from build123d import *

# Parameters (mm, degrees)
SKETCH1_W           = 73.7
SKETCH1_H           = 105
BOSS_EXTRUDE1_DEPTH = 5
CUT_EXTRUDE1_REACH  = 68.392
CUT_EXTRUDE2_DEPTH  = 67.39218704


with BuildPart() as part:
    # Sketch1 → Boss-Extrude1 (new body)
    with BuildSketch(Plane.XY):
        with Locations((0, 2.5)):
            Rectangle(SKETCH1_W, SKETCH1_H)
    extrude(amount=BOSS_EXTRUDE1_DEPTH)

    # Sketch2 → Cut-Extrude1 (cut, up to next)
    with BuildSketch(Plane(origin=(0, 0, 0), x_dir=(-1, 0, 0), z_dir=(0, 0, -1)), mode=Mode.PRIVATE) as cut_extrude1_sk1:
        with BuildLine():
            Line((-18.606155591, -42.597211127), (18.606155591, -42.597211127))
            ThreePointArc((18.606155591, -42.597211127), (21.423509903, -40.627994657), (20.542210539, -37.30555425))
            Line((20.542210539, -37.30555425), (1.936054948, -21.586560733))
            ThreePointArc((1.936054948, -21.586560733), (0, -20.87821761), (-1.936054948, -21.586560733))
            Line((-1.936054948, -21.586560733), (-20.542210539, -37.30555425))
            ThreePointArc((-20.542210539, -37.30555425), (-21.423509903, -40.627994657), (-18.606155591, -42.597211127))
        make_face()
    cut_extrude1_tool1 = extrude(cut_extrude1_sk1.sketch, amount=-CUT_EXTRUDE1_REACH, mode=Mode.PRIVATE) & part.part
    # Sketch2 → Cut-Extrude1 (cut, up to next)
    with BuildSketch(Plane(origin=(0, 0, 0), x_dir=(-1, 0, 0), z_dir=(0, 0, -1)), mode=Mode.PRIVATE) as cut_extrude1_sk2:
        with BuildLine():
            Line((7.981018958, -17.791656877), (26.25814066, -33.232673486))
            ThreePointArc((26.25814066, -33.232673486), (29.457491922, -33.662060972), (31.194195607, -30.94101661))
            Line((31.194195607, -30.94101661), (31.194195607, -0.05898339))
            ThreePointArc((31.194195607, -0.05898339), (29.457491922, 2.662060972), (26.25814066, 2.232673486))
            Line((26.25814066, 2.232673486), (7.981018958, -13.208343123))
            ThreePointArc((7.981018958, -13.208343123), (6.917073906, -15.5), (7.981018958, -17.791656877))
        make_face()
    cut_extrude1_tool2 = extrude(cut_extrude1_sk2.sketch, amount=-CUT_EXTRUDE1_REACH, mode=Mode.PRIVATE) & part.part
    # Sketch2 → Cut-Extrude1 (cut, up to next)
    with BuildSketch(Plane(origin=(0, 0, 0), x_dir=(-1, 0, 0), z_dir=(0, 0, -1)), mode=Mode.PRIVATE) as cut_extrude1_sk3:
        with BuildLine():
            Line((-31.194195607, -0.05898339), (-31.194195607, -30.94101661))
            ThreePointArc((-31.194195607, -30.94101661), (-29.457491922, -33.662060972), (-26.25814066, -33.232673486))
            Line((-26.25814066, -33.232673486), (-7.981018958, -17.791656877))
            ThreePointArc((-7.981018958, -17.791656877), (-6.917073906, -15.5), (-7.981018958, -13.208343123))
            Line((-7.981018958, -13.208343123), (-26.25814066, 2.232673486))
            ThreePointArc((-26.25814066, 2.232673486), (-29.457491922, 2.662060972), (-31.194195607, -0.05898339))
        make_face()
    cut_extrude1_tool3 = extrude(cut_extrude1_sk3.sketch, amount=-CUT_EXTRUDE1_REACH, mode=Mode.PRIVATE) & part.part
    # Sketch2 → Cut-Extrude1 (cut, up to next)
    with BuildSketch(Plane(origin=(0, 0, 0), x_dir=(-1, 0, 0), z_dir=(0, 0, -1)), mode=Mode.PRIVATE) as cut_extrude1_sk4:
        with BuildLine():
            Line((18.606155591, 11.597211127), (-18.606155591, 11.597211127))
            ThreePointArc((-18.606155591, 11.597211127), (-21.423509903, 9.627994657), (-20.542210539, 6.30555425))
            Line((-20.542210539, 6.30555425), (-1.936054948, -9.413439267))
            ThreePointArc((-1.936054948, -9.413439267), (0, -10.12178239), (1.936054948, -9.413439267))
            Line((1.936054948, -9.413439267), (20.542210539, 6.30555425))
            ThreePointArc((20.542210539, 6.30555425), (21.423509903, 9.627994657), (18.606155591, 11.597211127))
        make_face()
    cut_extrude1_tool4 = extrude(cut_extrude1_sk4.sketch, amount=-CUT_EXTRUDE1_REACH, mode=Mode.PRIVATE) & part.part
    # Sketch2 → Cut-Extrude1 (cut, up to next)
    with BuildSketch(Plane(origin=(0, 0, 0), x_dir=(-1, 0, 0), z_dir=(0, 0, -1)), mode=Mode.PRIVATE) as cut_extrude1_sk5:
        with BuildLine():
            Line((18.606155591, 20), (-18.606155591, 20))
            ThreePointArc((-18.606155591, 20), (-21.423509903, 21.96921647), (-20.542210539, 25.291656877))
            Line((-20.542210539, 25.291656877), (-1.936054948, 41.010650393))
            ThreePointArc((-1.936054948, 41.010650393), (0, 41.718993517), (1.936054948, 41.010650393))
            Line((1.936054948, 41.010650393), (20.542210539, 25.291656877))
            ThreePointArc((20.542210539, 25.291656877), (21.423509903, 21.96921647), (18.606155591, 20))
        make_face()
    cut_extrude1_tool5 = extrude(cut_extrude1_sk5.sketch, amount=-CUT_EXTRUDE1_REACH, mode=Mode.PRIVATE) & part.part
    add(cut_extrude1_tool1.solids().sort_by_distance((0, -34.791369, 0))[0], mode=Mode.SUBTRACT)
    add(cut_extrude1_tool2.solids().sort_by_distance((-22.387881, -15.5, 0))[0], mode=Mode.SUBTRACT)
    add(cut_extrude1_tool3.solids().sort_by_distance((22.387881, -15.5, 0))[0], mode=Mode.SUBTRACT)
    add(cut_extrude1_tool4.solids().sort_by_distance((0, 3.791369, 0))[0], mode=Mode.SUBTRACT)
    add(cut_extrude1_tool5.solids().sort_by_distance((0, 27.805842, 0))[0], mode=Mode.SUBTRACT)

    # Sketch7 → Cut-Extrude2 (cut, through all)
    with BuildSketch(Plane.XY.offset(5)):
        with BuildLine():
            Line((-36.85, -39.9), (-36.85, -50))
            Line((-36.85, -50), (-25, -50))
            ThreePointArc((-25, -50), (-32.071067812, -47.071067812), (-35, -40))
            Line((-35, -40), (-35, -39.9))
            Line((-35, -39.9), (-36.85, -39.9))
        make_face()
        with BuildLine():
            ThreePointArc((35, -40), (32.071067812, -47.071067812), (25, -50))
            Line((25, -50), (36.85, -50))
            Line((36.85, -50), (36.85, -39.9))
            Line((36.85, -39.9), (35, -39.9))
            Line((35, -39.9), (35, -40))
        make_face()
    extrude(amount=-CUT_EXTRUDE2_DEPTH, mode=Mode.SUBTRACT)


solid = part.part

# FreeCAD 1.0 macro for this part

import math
import FreeCAD as App
import Part
import Sketcher

doc = App.newDocument("Part")
body = doc.addObject("PartDesign::Body", "Body")

# Sketch on XY plane
sketch1 = body.newObject("Sketcher::SketchObject", "Sketch")
sketch1.AttachmentSupport = (doc.getObject("XY_Plane"), [""])
sketch1.MapMode = "FlatFace"
sketch1.addGeometry(Part.LineSegment(App.Vector(-36.85, 55, 0), App.Vector(-36.85, -50, 0)), False)
sketch1.addGeometry(Part.LineSegment(App.Vector(-36.85, -50, 0), App.Vector(36.85, -50, 0)), False)
sketch1.addGeometry(Part.LineSegment(App.Vector(36.85, -50, 0), App.Vector(36.85, 55, 0)), False)
sketch1.addGeometry(Part.LineSegment(App.Vector(36.85, 55, 0), App.Vector(-36.85, 55, 0)), False)
sketch1.addConstraint(Sketcher.Constraint("Coincident", 0, 2, 1, 1))
sketch1.addConstraint(Sketcher.Constraint("Coincident", 1, 2, 2, 1))
sketch1.addConstraint(Sketcher.Constraint("Coincident", 2, 2, 3, 1))
sketch1.addConstraint(Sketcher.Constraint("Coincident", 3, 2, 0, 1))
sketch1.addConstraint(Sketcher.Constraint("Vertical", 0))
sketch1.addConstraint(Sketcher.Constraint("Horizontal", 1))
sketch1.addConstraint(Sketcher.Constraint("Vertical", 2))
sketch1.addConstraint(Sketcher.Constraint("Horizontal", 3))
sketch1.addConstraint(Sketcher.Constraint("DistanceY", 0, 2, 0, 1, 105.0))
sketch1.addConstraint(Sketcher.Constraint("DistanceX", 1, 1, 1, 2, 73.7))
sketch1.addConstraint(Sketcher.Constraint("DistanceY", 0, 2, -1, 1, 50.0))
sketch1.addConstraint(Sketcher.Constraint("DistanceX", 0, 2, -1, 1, 36.85))
pad1 = body.newObject("PartDesign::Pad", "Pad")
pad1.Profile = sketch1
pad1.Length = 5

# Sketch on XY plane
sketch2 = body.newObject("Sketcher::SketchObject", "Sketch001")
sketch2.AttachmentSupport = (doc.getObject("XY_Plane"), [""])
sketch2.MapMode = "FlatFace"
sketch2.addGeometry(Part.LineSegment(App.Vector(18.606156, -42.597211, 0), App.Vector(-18.606156, -42.597211, 0)), False)
sketch2.addGeometry(Part.ArcOfCircle(Part.Circle(App.Vector(-18.606156, -39.597211, 0), App.Vector(0, 0, 1), 3), math.radians(130.192046), math.radians(270)), False)
sketch2.addGeometry(Part.LineSegment(App.Vector(-20.542211, -37.305554, 0), App.Vector(-1.936055, -21.586561, 0)), False)
sketch2.addGeometry(Part.ArcOfCircle(Part.Circle(App.Vector(0, -23.878218, 0), App.Vector(0, 0, 1), 3), math.radians(49.807954), math.radians(130.192046)), False)
sketch2.addGeometry(Part.LineSegment(App.Vector(1.936055, -21.586561, 0), App.Vector(20.542211, -37.305554, 0)), False)
sketch2.addGeometry(Part.ArcOfCircle(Part.Circle(App.Vector(18.606156, -39.597211, 0), App.Vector(0, 0, 1), 3), math.radians(-90), math.radians(49.807954)), False)
sketch2.addConstraint(Sketcher.Constraint("Tangent", 0, 2, 1, 2))
sketch2.addConstraint(Sketcher.Constraint("Tangent", 1, 1, 2, 1))
sketch2.addConstraint(Sketcher.Constraint("Tangent", 2, 2, 3, 2))
sketch2.addConstraint(Sketcher.Constraint("Tangent", 3, 1, 4, 1))
sketch2.addConstraint(Sketcher.Constraint("Tangent", 4, 2, 5, 2))
sketch2.addConstraint(Sketcher.Constraint("Tangent", 5, 1, 0, 1))
sketch2.addConstraint(Sketcher.Constraint("Horizontal", 0))
sketch2.addConstraint(Sketcher.Constraint("Equal", 1, 3))
sketch2.addConstraint(Sketcher.Constraint("Equal", 3, 5))
sketch2.addConstraint(Sketcher.Constraint("Symmetric", 2, 2, 3, 1, -2))
sketch2.addConstraint(Sketcher.Constraint("Radius", 1, 3.0))
sketch2.addConstraint(Sketcher.Constraint("DistanceX", 0, 2, 0, 1, 37.212311))
sketch2.addConstraint(Sketcher.Constraint("DistanceX", 1, 3, 2, 2, 16.670101))
sketch2.addConstraint(Sketcher.Constraint("DistanceY", 1, 3, -1, 1, 39.597211))
pocket1 = body.newObject("PartDesign::Pocket", "Pocket")
pocket1.Profile = sketch2
pocket1.Type = "UpToFirst"
pocket1.Reversed = True

# Sketch on XY plane
sketch3 = body.newObject("Sketcher::SketchObject", "Sketch002")
sketch3.AttachmentSupport = (doc.getObject("XY_Plane"), [""])
sketch3.MapMode = "FlatFace"
sketch3.addGeometry(Part.LineSegment(App.Vector(-7.981019, -17.791657, 0), App.Vector(-26.258141, -33.232673, 0)), False)
sketch3.addGeometry(Part.ArcOfCircle(Part.Circle(App.Vector(-28.194196, -30.941017, 0), App.Vector(0, 0, 1), 3), math.radians(180), math.radians(310.192046)), False)
sketch3.addGeometry(Part.LineSegment(App.Vector(-31.194196, -30.941017, 0), App.Vector(-31.194196, -0.058983, 0)), False)
sketch3.addGeometry(Part.ArcOfCircle(Part.Circle(App.Vector(-28.194196, -0.058983, 0), App.Vector(0, 0, 1), 3), math.radians(49.807954), math.radians(180)), False)
sketch3.addGeometry(Part.LineSegment(App.Vector(-26.258141, 2.232673, 0), App.Vector(-7.981019, -13.208343, 0)), False)
sketch3.addGeometry(Part.ArcOfCircle(Part.Circle(App.Vector(-9.917074, -15.5, 0), App.Vector(0, 0, 1), 3), math.radians(-49.807954), math.radians(49.807954)), False)
sketch3.addConstraint(Sketcher.Constraint("Tangent", 0, 2, 1, 2))
sketch3.addConstraint(Sketcher.Constraint("Tangent", 1, 1, 2, 1))
sketch3.addConstraint(Sketcher.Constraint("Tangent", 2, 2, 3, 2))
sketch3.addConstraint(Sketcher.Constraint("Tangent", 3, 1, 4, 1))
sketch3.addConstraint(Sketcher.Constraint("Tangent", 4, 2, 5, 2))
sketch3.addConstraint(Sketcher.Constraint("Tangent", 5, 1, 0, 1))
sketch3.addConstraint(Sketcher.Constraint("Vertical", 2))
sketch3.addConstraint(Sketcher.Constraint("Equal", 1, 3))
sketch3.addConstraint(Sketcher.Constraint("Equal", 3, 5))
sketch3.addConstraint(Sketcher.Constraint("Vertical", 0, 2, 3, 1))
sketch3.addConstraint(Sketcher.Constraint("Radius", 1, 3.0))
sketch3.addConstraint(Sketcher.Constraint("DistanceY", 5, 3, -1, 1, 15.5))
sketch3.addConstraint(Sketcher.Constraint("DistanceY", 2, 1, 2, 2, 30.882033))
sketch3.addConstraint(Sketcher.Constraint("DistanceX", 0, 2, -1, 1, 26.258141))
sketch3.addConstraint(Sketcher.Constraint("DistanceX", 4, 2, -1, 1, 7.981019))
pocket2 = body.newObject("PartDesign::Pocket", "Pocket001")
pocket2.Profile = sketch3
pocket2.Type = "UpToFirst"
pocket2.Reversed = True

# Sketch on XY plane
sketch4 = body.newObject("Sketcher::SketchObject", "Sketch003")
sketch4.AttachmentSupport = (doc.getObject("XY_Plane"), [""])
sketch4.MapMode = "FlatFace"
sketch4.addGeometry(Part.LineSegment(App.Vector(31.194196, -0.058983, 0), App.Vector(31.194196, -30.941017, 0)), False)
sketch4.addGeometry(Part.ArcOfCircle(Part.Circle(App.Vector(28.194196, -30.941017, 0), App.Vector(0, 0, 1), 3), math.radians(-130.192046), math.radians(0)), False)
sketch4.addGeometry(Part.LineSegment(App.Vector(26.258141, -33.232673, 0), App.Vector(7.981019, -17.791657, 0)), False)
sketch4.addGeometry(Part.ArcOfCircle(Part.Circle(App.Vector(9.917074, -15.5, 0), App.Vector(0, 0, 1), 3), math.radians(130.192046), math.radians(229.807954)), False)
sketch4.addGeometry(Part.LineSegment(App.Vector(7.981019, -13.208343, 0), App.Vector(26.258141, 2.232673, 0)), False)
sketch4.addGeometry(Part.ArcOfCircle(Part.Circle(App.Vector(28.194196, -0.058983, 0), App.Vector(0, 0, 1), 3), math.radians(0), math.radians(130.192046)), False)
sketch4.addConstraint(Sketcher.Constraint("Tangent", 0, 2, 1, 2))
sketch4.addConstraint(Sketcher.Constraint("Tangent", 1, 1, 2, 1))
sketch4.addConstraint(Sketcher.Constraint("Tangent", 2, 2, 3, 2))
sketch4.addConstraint(Sketcher.Constraint("Tangent", 3, 1, 4, 1))
sketch4.addConstraint(Sketcher.Constraint("Tangent", 4, 2, 5, 2))
sketch4.addConstraint(Sketcher.Constraint("Tangent", 5, 1, 0, 1))
sketch4.addConstraint(Sketcher.Constraint("Vertical", 0))
sketch4.addConstraint(Sketcher.Constraint("Equal", 1, 3))
sketch4.addConstraint(Sketcher.Constraint("Equal", 3, 5))
sketch4.addConstraint(Sketcher.Constraint("Vertical", 2, 2, 3, 1))
sketch4.addConstraint(Sketcher.Constraint("Radius", 1, 3.0))
sketch4.addConstraint(Sketcher.Constraint("DistanceY", 3, 3, -1, 1, 15.5))
sketch4.addConstraint(Sketcher.Constraint("DistanceY", 0, 2, 0, 1, 30.882033))
sketch4.addConstraint(Sketcher.Constraint("DistanceX", -1, 1, 1, 1, 26.258141))
sketch4.addConstraint(Sketcher.Constraint("DistanceX", -1, 1, 2, 2, 7.981019))
pocket3 = body.newObject("PartDesign::Pocket", "Pocket002")
pocket3.Profile = sketch4
pocket3.Type = "UpToFirst"
pocket3.Reversed = True

# Sketch on XY plane
sketch5 = body.newObject("Sketcher::SketchObject", "Sketch004")
sketch5.AttachmentSupport = (doc.getObject("XY_Plane"), [""])
sketch5.MapMode = "FlatFace"
sketch5.addGeometry(Part.LineSegment(App.Vector(-18.606156, 11.597211, 0), App.Vector(18.606156, 11.597211, 0)), False)
sketch5.addGeometry(Part.ArcOfCircle(Part.Circle(App.Vector(18.606156, 8.597211, 0), App.Vector(0, 0, 1), 3), math.radians(-49.807954), math.radians(90)), False)
sketch5.addGeometry(Part.LineSegment(App.Vector(20.542211, 6.305554, 0), App.Vector(1.936055, -9.413439, 0)), False)
sketch5.addGeometry(Part.ArcOfCircle(Part.Circle(App.Vector(0, -7.121782, 0), App.Vector(0, 0, 1), 3), math.radians(-130.192046), math.radians(-49.807954)), False)
sketch5.addGeometry(Part.LineSegment(App.Vector(-1.936055, -9.413439, 0), App.Vector(-20.542211, 6.305554, 0)), False)
sketch5.addGeometry(Part.ArcOfCircle(Part.Circle(App.Vector(-18.606156, 8.597211, 0), App.Vector(0, 0, 1), 3), math.radians(90), math.radians(229.807954)), False)
sketch5.addConstraint(Sketcher.Constraint("Tangent", 0, 2, 1, 2))
sketch5.addConstraint(Sketcher.Constraint("Tangent", 1, 1, 2, 1))
sketch5.addConstraint(Sketcher.Constraint("Tangent", 2, 2, 3, 2))
sketch5.addConstraint(Sketcher.Constraint("Tangent", 3, 1, 4, 1))
sketch5.addConstraint(Sketcher.Constraint("Tangent", 4, 2, 5, 2))
sketch5.addConstraint(Sketcher.Constraint("Tangent", 5, 1, 0, 1))
sketch5.addConstraint(Sketcher.Constraint("Horizontal", 0))
sketch5.addConstraint(Sketcher.Constraint("Equal", 1, 3))
sketch5.addConstraint(Sketcher.Constraint("Equal", 3, 5))
sketch5.addConstraint(Sketcher.Constraint("Symmetric", 2, 2, 3, 1, -2))
sketch5.addConstraint(Sketcher.Constraint("Radius", 1, 3.0))
sketch5.addConstraint(Sketcher.Constraint("DistanceX", 0, 1, 0, 2, 37.212311))
sketch5.addConstraint(Sketcher.Constraint("DistanceX", 2, 2, 1, 3, 16.670101))
sketch5.addConstraint(Sketcher.Constraint("DistanceY", -1, 1, 1, 3, 8.597211))
pocket4 = body.newObject("PartDesign::Pocket", "Pocket003")
pocket4.Profile = sketch5
pocket4.Type = "UpToFirst"
pocket4.Reversed = True

# Sketch on XY plane
sketch6 = body.newObject("Sketcher::SketchObject", "Sketch005")
sketch6.AttachmentSupport = (doc.getObject("XY_Plane"), [""])
sketch6.MapMode = "FlatFace"
sketch6.addGeometry(Part.LineSegment(App.Vector(18.606156, 20, 0), App.Vector(-18.606156, 20, 0)), False)
sketch6.addGeometry(Part.ArcOfCircle(Part.Circle(App.Vector(-18.606156, 23, 0), App.Vector(0, 0, 1), 3), math.radians(130.192046), math.radians(270)), False)
sketch6.addGeometry(Part.LineSegment(App.Vector(-20.542211, 25.291657, 0), App.Vector(-1.936055, 41.01065, 0)), False)
sketch6.addGeometry(Part.ArcOfCircle(Part.Circle(App.Vector(0, 38.718994, 0), App.Vector(0, 0, 1), 3), math.radians(49.807954), math.radians(130.192046)), False)
sketch6.addGeometry(Part.LineSegment(App.Vector(1.936055, 41.01065, 0), App.Vector(20.542211, 25.291657, 0)), False)
sketch6.addGeometry(Part.ArcOfCircle(Part.Circle(App.Vector(18.606156, 23, 0), App.Vector(0, 0, 1), 3), math.radians(-90), math.radians(49.807954)), False)
sketch6.addConstraint(Sketcher.Constraint("Tangent", 0, 2, 1, 2))
sketch6.addConstraint(Sketcher.Constraint("Tangent", 1, 1, 2, 1))
sketch6.addConstraint(Sketcher.Constraint("Tangent", 2, 2, 3, 2))
sketch6.addConstraint(Sketcher.Constraint("Tangent", 3, 1, 4, 1))
sketch6.addConstraint(Sketcher.Constraint("Tangent", 4, 2, 5, 2))
sketch6.addConstraint(Sketcher.Constraint("Tangent", 5, 1, 0, 1))
sketch6.addConstraint(Sketcher.Constraint("Horizontal", 0))
sketch6.addConstraint(Sketcher.Constraint("Equal", 1, 3))
sketch6.addConstraint(Sketcher.Constraint("Equal", 3, 5))
sketch6.addConstraint(Sketcher.Constraint("Symmetric", 2, 2, 3, 1, -2))
sketch6.addConstraint(Sketcher.Constraint("Radius", 1, 3.0))
sketch6.addConstraint(Sketcher.Constraint("DistanceY", -1, 1, 1, 3, 23.0))
sketch6.addConstraint(Sketcher.Constraint("DistanceX", 0, 2, 0, 1, 37.212311))
sketch6.addConstraint(Sketcher.Constraint("DistanceX", 1, 3, 2, 2, 16.670101))
pocket5 = body.newObject("PartDesign::Pocket", "Pocket004")
pocket5.Profile = sketch6
pocket5.Type = "UpToFirst"
pocket5.Reversed = True

# Sketch on XY plane
sketch7 = body.newObject("Sketcher::SketchObject", "Sketch006")
sketch7.AttachmentSupport = (doc.getObject("XY_Plane"), [""])
sketch7.MapMode = "FlatFace"
sketch7.AttachmentOffset = App.Placement(App.Vector(0, 0, 5), App.Rotation())
sketch7.addGeometry(Part.LineSegment(App.Vector(-36.85, -39.9, 0), App.Vector(-36.85, -50, 0)), False)
sketch7.addGeometry(Part.LineSegment(App.Vector(-36.85, -50, 0), App.Vector(-25, -50, 0)), False)
sketch7.addGeometry(Part.ArcOfCircle(Part.Circle(App.Vector(-25, -40, 0), App.Vector(0, 0, 1), 10), math.radians(180), math.radians(270)), False)
sketch7.addGeometry(Part.LineSegment(App.Vector(-35, -40, 0), App.Vector(-35, -39.9, 0)), False)
sketch7.addGeometry(Part.LineSegment(App.Vector(-35, -39.9, 0), App.Vector(-36.85, -39.9, 0)), False)
sketch7.addGeometry(Part.ArcOfCircle(Part.Circle(App.Vector(25, -40, 0), App.Vector(0, 0, 1), 10), math.radians(-90), math.radians(0)), False)
sketch7.addGeometry(Part.LineSegment(App.Vector(25, -50, 0), App.Vector(36.85, -50, 0)), False)
sketch7.addGeometry(Part.LineSegment(App.Vector(36.85, -50, 0), App.Vector(36.85, -39.9, 0)), False)
sketch7.addGeometry(Part.LineSegment(App.Vector(36.85, -39.9, 0), App.Vector(35, -39.9, 0)), False)
sketch7.addGeometry(Part.LineSegment(App.Vector(35, -39.9, 0), App.Vector(35, -40, 0)), False)
sketch7.addConstraint(Sketcher.Constraint("Coincident", 0, 2, 1, 1))
sketch7.addConstraint(Sketcher.Constraint("Tangent", 1, 2, 2, 2))
sketch7.addConstraint(Sketcher.Constraint("Tangent", 2, 1, 3, 1))
sketch7.addConstraint(Sketcher.Constraint("Coincident", 3, 2, 4, 1))
sketch7.addConstraint(Sketcher.Constraint("Coincident", 4, 2, 0, 1))
sketch7.addConstraint(Sketcher.Constraint("Tangent", 5, 1, 6, 1))
sketch7.addConstraint(Sketcher.Constraint("Coincident", 6, 2, 7, 1))
sketch7.addConstraint(Sketcher.Constraint("Coincident", 7, 2, 8, 1))
sketch7.addConstraint(Sketcher.Constraint("Coincident", 8, 2, 9, 1))
sketch7.addConstraint(Sketcher.Constraint("Tangent", 9, 2, 5, 2))
sketch7.addConstraint(Sketcher.Constraint("Vertical", 0))
sketch7.addConstraint(Sketcher.Constraint("Horizontal", 1))
sketch7.addConstraint(Sketcher.Constraint("Vertical", 3))
sketch7.addConstraint(Sketcher.Constraint("Horizontal", 4))
sketch7.addConstraint(Sketcher.Constraint("Horizontal", 6))
sketch7.addConstraint(Sketcher.Constraint("Vertical", 7))
sketch7.addConstraint(Sketcher.Constraint("Horizontal", 8))
sketch7.addConstraint(Sketcher.Constraint("Vertical", 9))
sketch7.addConstraint(Sketcher.Constraint("Equal", 2, 5))
sketch7.addConstraint(Sketcher.Constraint("Symmetric", 2, 3, 5, 3, -2))
sketch7.addConstraint(Sketcher.Constraint("Symmetric", 4, 2, 7, 2, -2))
sketch7.addConstraint(Sketcher.Constraint("Radius", 2, 10.0))
sketch7.addConstraint(Sketcher.Constraint("DistanceY", 0, 2, 0, 1, 10.1))
sketch7.addConstraint(Sketcher.Constraint("DistanceX", 2, 3, -1, 1, 25.0))
sketch7.addConstraint(Sketcher.Constraint("DistanceY", 2, 3, -1, 1, 40.0))
sketch7.addConstraint(Sketcher.Constraint("DistanceX", 1, 1, 1, 2, 11.85))
pocket6 = body.newObject("PartDesign::Pocket", "Pocket005")
pocket6.Profile = sketch7
pocket6.Type = "ThroughAll"

doc.recompute()
